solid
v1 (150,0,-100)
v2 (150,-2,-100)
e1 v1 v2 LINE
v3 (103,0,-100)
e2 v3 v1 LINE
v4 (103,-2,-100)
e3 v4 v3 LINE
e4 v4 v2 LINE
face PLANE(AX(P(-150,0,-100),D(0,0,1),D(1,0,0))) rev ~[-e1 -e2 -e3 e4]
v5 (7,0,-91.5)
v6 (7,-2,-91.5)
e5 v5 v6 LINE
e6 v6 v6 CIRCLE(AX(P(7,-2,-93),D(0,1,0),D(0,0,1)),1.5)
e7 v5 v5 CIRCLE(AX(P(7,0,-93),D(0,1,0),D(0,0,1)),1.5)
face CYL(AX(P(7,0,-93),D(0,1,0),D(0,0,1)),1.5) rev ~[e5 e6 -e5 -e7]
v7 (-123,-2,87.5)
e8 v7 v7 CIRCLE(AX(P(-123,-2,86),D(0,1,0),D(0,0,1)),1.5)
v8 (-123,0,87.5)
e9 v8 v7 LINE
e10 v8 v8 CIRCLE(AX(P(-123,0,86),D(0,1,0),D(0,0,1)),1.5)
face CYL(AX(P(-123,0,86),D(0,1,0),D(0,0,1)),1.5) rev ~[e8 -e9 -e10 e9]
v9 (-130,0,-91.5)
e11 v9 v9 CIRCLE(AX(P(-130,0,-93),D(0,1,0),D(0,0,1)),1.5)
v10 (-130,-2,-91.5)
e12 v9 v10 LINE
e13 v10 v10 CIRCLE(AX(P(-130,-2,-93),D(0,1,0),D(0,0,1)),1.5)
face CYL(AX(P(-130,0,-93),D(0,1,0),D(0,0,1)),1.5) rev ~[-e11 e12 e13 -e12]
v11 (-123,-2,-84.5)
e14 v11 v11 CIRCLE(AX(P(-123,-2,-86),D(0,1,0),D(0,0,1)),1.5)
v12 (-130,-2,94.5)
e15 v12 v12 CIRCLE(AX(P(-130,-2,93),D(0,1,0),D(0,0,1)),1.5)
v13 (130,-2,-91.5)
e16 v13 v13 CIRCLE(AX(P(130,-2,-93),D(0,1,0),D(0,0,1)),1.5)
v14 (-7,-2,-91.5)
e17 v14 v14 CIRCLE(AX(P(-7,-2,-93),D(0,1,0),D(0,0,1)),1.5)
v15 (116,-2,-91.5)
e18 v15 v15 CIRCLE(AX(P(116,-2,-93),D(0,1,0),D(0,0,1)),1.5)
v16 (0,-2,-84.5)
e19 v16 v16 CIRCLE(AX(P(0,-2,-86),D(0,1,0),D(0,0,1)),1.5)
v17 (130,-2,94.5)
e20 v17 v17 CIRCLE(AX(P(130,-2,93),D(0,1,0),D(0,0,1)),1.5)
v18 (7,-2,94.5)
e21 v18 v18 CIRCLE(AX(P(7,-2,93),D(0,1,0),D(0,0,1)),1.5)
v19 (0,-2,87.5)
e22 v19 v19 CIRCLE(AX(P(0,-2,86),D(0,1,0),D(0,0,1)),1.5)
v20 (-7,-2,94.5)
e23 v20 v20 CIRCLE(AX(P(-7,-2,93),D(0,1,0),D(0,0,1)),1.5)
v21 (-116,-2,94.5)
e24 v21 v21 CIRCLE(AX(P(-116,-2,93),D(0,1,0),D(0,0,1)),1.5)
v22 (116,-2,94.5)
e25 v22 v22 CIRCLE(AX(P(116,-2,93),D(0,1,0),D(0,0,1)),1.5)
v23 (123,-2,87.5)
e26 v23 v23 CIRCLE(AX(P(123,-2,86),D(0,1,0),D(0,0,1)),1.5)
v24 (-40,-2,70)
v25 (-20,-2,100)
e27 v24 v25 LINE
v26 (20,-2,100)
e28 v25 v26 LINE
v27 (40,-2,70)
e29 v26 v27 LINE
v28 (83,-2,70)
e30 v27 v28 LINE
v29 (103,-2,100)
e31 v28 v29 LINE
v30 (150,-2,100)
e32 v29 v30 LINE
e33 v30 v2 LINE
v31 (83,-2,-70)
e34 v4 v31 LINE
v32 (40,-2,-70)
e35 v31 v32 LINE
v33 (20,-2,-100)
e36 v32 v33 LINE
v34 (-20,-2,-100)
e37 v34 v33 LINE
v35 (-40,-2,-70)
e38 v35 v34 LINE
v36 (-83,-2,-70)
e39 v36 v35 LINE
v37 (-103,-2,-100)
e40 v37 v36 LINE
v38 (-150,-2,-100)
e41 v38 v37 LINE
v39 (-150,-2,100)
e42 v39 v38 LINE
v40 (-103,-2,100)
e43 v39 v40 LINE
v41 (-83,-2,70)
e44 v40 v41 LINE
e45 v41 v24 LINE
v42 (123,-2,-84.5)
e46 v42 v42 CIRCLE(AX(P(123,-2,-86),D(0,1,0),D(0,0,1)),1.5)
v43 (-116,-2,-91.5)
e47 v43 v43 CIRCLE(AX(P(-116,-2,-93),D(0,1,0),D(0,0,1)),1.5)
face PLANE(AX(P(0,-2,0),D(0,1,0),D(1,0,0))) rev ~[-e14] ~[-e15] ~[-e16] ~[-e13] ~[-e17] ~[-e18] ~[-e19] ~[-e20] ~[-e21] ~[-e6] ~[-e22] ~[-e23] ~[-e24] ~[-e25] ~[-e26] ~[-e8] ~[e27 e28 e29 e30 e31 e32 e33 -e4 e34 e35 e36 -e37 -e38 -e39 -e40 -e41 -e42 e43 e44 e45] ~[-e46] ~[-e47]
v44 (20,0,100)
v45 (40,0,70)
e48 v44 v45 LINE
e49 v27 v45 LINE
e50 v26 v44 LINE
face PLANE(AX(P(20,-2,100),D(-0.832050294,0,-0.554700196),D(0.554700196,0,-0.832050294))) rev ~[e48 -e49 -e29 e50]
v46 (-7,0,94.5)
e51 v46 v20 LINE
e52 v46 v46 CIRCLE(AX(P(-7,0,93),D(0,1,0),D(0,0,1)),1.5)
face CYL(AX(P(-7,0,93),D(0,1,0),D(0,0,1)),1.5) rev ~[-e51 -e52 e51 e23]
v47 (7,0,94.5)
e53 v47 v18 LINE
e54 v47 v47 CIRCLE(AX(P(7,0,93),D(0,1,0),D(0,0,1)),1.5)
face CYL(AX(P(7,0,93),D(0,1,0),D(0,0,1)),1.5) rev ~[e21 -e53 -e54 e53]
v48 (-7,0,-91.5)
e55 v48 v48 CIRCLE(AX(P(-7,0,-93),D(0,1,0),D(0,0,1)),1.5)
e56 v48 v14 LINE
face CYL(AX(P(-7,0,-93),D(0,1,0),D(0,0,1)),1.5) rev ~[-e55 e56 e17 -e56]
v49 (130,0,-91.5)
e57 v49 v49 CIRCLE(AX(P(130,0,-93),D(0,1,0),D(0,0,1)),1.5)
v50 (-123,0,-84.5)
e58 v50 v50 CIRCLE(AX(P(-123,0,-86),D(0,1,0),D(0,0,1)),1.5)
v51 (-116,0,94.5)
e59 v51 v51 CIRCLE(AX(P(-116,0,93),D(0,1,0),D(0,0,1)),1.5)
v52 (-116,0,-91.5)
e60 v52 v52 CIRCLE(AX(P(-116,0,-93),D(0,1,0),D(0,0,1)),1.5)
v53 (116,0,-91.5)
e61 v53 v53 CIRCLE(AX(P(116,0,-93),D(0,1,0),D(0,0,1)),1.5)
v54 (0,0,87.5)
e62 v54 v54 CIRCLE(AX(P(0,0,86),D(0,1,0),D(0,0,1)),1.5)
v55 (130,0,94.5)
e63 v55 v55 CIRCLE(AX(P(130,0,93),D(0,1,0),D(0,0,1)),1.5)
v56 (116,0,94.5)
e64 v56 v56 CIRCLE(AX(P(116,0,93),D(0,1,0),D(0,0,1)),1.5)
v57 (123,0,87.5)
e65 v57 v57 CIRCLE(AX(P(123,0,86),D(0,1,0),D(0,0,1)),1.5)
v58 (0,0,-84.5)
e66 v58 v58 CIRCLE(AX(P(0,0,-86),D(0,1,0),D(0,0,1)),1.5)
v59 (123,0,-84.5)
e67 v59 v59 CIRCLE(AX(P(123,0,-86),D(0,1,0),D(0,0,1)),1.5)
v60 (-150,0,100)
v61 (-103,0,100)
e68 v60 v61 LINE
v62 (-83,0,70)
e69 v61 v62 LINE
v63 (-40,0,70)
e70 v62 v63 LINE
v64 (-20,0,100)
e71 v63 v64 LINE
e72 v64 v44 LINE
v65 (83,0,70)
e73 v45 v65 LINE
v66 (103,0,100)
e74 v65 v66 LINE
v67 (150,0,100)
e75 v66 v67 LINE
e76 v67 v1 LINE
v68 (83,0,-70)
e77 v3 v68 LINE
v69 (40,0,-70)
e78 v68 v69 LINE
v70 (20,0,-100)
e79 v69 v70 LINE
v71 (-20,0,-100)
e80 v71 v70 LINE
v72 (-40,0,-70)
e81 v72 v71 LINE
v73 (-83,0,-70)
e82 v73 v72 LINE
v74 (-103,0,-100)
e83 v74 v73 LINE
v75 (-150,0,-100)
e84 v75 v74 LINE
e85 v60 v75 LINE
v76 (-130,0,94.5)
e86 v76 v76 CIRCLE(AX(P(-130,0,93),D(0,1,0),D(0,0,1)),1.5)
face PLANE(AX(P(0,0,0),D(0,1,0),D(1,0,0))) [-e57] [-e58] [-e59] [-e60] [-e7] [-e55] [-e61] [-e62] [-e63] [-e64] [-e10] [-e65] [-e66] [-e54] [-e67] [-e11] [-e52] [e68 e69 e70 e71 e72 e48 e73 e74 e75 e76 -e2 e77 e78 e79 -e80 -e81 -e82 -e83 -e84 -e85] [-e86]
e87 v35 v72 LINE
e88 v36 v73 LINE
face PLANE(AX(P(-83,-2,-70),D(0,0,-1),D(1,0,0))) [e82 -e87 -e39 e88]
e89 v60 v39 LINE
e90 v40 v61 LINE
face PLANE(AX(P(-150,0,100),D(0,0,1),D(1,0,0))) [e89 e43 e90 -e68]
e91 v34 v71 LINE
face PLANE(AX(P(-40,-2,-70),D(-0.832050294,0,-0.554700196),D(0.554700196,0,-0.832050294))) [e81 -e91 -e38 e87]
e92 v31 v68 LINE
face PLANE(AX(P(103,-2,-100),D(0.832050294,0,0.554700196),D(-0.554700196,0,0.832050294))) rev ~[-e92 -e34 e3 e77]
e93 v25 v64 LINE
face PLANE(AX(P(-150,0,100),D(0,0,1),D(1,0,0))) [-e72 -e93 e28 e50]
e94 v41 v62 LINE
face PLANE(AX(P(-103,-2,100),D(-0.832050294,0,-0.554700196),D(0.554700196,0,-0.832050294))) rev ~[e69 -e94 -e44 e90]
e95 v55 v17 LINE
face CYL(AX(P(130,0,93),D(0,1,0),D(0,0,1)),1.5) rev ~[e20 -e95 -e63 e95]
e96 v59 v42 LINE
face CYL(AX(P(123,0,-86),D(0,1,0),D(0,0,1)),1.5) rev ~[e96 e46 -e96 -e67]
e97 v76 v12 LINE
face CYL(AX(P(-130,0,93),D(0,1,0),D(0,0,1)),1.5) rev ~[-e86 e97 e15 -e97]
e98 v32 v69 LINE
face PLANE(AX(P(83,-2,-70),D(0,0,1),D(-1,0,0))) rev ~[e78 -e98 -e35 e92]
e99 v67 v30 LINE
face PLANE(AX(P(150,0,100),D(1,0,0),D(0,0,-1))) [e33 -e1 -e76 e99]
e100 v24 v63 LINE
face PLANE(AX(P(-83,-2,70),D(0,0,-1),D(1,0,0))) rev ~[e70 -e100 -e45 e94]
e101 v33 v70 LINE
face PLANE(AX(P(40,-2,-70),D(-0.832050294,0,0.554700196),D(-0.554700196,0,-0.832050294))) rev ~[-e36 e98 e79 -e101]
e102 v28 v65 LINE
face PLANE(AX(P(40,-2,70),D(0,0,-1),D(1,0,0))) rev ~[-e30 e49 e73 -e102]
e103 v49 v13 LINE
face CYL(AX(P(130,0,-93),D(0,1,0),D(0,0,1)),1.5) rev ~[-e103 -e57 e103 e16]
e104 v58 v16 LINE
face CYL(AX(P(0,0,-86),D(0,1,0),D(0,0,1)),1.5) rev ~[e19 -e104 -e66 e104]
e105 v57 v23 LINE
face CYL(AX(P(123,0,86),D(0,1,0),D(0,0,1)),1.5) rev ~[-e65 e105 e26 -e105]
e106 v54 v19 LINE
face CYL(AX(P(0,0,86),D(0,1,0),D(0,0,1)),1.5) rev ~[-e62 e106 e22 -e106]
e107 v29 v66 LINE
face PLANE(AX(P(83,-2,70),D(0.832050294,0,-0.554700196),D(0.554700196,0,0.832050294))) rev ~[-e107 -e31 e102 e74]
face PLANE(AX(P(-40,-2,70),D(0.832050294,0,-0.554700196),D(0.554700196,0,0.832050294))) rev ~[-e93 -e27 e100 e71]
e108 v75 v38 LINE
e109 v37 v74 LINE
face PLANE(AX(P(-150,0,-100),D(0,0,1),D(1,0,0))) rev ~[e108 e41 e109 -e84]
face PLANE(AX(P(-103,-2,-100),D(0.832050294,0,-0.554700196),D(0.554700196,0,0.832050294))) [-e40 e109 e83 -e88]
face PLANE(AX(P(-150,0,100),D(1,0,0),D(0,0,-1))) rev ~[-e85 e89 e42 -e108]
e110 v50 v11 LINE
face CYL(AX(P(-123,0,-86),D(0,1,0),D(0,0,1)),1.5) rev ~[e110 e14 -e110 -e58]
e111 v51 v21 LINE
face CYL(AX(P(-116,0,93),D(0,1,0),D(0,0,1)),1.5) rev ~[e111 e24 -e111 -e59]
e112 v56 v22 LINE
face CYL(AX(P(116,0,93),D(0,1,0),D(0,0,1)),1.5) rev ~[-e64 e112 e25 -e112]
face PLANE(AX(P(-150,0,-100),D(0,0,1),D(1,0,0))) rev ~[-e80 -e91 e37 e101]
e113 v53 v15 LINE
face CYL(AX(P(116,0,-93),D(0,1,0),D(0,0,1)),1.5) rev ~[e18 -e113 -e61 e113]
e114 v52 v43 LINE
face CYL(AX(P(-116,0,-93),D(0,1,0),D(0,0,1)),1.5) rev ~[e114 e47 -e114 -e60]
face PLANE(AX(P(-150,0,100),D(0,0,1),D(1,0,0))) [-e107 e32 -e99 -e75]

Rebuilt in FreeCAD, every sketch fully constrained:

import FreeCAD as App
import Part
import Sketcher
from FreeCAD import Vector


def add_polygon(sketch, points):
    """Adds a closed chain of lines whose ends are joined by coincident constraints."""
    first, n = sketch.GeometryCount, len(points)
    for a, b in zip(points, points[1:] + points[:1]):
        sketch.addGeometry(Part.LineSegment(App.Vector(*a, 0), App.Vector(*b, 0)), False)
    for i in range(n):
        sketch.addConstraint(Sketcher.Constraint("Coincident", first + i, 2, first + (i + 1) % n, 1))

doc = App.newDocument("Part")
body = doc.addObject("PartDesign::Body", "Body")

sketch1 = doc.addObject("Sketcher::SketchObject", "Sketch")
body.addObject(sketch1)
sketch1.AttachmentSupport = (doc.XZ_Plane, [""])
sketch1.MapMode = "FlatFace"
add_polygon(sketch1, [(-150, -100), (-150, 100), (150, 100), (150, -100)])
sketch1.addConstraint([
    Sketcher.Constraint("Vertical", 0),
    Sketcher.Constraint("Horizontal", 1),
    Sketcher.Constraint("Vertical", 2),
    Sketcher.Constraint("Horizontal", 3),
    Sketcher.Constraint("Symmetric", 0, 2, 2, 2, -1, 1),
    Sketcher.Constraint("DistanceX", 1, 1, 1, 2, 300.0),
    Sketcher.Constraint("DistanceY", 0, 1, 0, 2, 200.0),
])
pad1 = doc.addObject("PartDesign::Pad", "Pad")
body.addObject(pad1)
pad1.Profile = sketch1
pad1.Length = 2

sketch2 = doc.addObject("Sketcher::SketchObject", "Sketch001")
body.addObject(sketch2)
sketch2.AttachmentSupport = (doc.XZ_Plane, [""])
sketch2.MapMode = "FlatFace"
sketch2.addGeometry(Part.Circle(Vector(0, 86, 0), Vector(0, 0, 1), 1.5), False)
sketch2.addConstraint([
    Sketcher.Constraint("PointOnObject", 0, 3, -2),
    Sketcher.Constraint("Diameter", 0, 3.0),
    Sketcher.Constraint("DistanceY", -1, 1, 0, 3, 86.0),
])
pocket1 = doc.addObject("PartDesign::Pocket", "Pocket")
body.addObject(pocket1)
pocket1.Profile = sketch2
pocket1.Type = "UpToFirst"
pocket1.Reversed = True

sketch3 = doc.addObject("Sketcher::SketchObject", "Sketch002")
body.addObject(sketch3)
sketch3.AttachmentSupport = (doc.XZ_Plane, [""])
sketch3.MapMode = "FlatFace"
sketch3.addGeometry(Part.Circle(Vector(-7, 93, 0), Vector(0, 0, 1), 1.5), False)
sketch3.addConstraint([
    Sketcher.Constraint("Diameter", 0, 3.0),
    Sketcher.Constraint("DistanceX", 0, 3, -1, 1, 7.0),
    Sketcher.Constraint("DistanceY", -1, 1, 0, 3, 93.0),
])
pocket2 = doc.addObject("PartDesign::Pocket", "Pocket001")
body.addObject(pocket2)
pocket2.Profile = sketch3
pocket2.Type = "UpToFirst"
pocket2.Reversed = True

sketch4 = doc.addObject("Sketcher::SketchObject", "Sketch003")
body.addObject(sketch4)
sketch4.AttachmentSupport = (doc.XZ_Plane, [""])
sketch4.MapMode = "FlatFace"
sketch4.addGeometry(Part.Circle(Vector(7, 93, 0), Vector(0, 0, 1), 1.5), False)
sketch4.addConstraint([
    Sketcher.Constraint("Diameter", 0, 3.0),
    Sketcher.Constraint("DistanceX", -1, 1, 0, 3, 7.0),
    Sketcher.Constraint("DistanceY", -1, 1, 0, 3, 93.0),
])
pocket3 = doc.addObject("PartDesign::Pocket", "Pocket002")
body.addObject(pocket3)
pocket3.Profile = sketch4
pocket3.Type = "UpToFirst"
pocket3.Reversed = True

sketch5 = doc.addObject("Sketcher::SketchObject", "Sketch004")
body.addObject(sketch5)
sketch5.AttachmentSupport = (doc.XZ_Plane, [""])
sketch5.MapMode = "FlatFace"
sketch5.addGeometry(Part.Circle(Vector(-123, 86, 0), Vector(0, 0, 1), 1.5), False)
sketch5.addConstraint([
    Sketcher.Constraint("Diameter", 0, 3.0),
    Sketcher.Constraint("DistanceX", 0, 3, -1, 1, 123.0),
    Sketcher.Constraint("DistanceY", -1, 1, 0, 3, 86.0),
])
pocket4 = doc.addObject("PartDesign::Pocket", "Pocket003")
body.addObject(pocket4)
pocket4.Profile = sketch5
pocket4.Type = "UpToFirst"
pocket4.Reversed = True

sketch6 = doc.addObject("Sketcher::SketchObject", "Sketch005")
body.addObject(sketch6)
sketch6.AttachmentSupport = (doc.XZ_Plane, [""])
sketch6.MapMode = "FlatFace"
sketch6.addGeometry(Part.Circle(Vector(-130, 93, 0), Vector(0, 0, 1), 1.5), False)
sketch6.addConstraint([
    Sketcher.Constraint("Diameter", 0, 3.0),
    Sketcher.Constraint("DistanceX", 0, 3, -1, 1, 130.0),
    Sketcher.Constraint("DistanceY", -1, 1, 0, 3, 93.0),
])
pocket5 = doc.addObject("PartDesign::Pocket", "Pocket004")
body.addObject(pocket5)
pocket5.Profile = sketch6
pocket5.Type = "UpToFirst"
pocket5.Reversed = True

sketch7 = doc.addObject("Sketcher::SketchObject", "Sketch006")
body.addObject(sketch7)
sketch7.AttachmentSupport = (doc.XZ_Plane, [""])
sketch7.MapMode = "FlatFace"
sketch7.addGeometry(Part.Circle(Vector(-116, 93, 0), Vector(0, 0, 1), 1.5), False)
sketch7.addConstraint([
    Sketcher.Constraint("Diameter", 0, 3.0),
    Sketcher.Constraint("DistanceX", 0, 3, -1, 1, 116.0),
    Sketcher.Constraint("DistanceY", -1, 1, 0, 3, 93.0),
])
pocket6 = doc.addObject("PartDesign::Pocket", "Pocket005")
body.addObject(pocket6)
pocket6.Profile = sketch7
pocket6.Type = "UpToFirst"
pocket6.Reversed = True

sketch8 = doc.addObject("Sketcher::SketchObject", "Sketch007")
body.addObject(sketch8)
sketch8.AttachmentSupport = (doc.XZ_Plane, [""])
sketch8.MapMode = "FlatFace"
sketch8.addGeometry(Part.Circle(Vector(130, 93, 0), Vector(0, 0, 1), 1.5), False)
sketch8.addConstraint([
    Sketcher.Constraint("Diameter", 0, 3.0),
    Sketcher.Constraint("DistanceX", -1, 1, 0, 3, 130.0),
    Sketcher.Constraint("DistanceY", -1, 1, 0, 3, 93.0),
])
pocket7 = doc.addObject("PartDesign::Pocket", "Pocket006")
body.addObject(pocket7)
pocket7.Profile = sketch8
pocket7.Type = "UpToFirst"
pocket7.Reversed = True

sketch9 = doc.addObject("Sketcher::SketchObject", "Sketch008")
body.addObject(sketch9)
sketch9.AttachmentSupport = (doc.XZ_Plane, [""])
sketch9.MapMode = "FlatFace"
sketch9.addGeometry(Part.Circle(Vector(123, 86, 0), Vector(0, 0, 1), 1.5), False)
sketch9.addConstraint([
    Sketcher.Constraint("Diameter", 0, 3.0),
    Sketcher.Constraint("DistanceX", -1, 1, 0, 3, 123.0),
    Sketcher.Constraint("DistanceY", -1, 1, 0, 3, 86.0),
])
pocket8 = doc.addObject("PartDesign::Pocket", "Pocket007")
body.addObject(pocket8)
pocket8.Profile = sketch9
pocket8.Type = "UpToFirst"
pocket8.Reversed = True

sketch10 = doc.addObject("Sketcher::SketchObject", "Sketch009")
body.addObject(sketch10)
sketch10.AttachmentSupport = (doc.XZ_Plane, [""])
sketch10.MapMode = "FlatFace"
sketch10.addGeometry(Part.Circle(Vector(116, 93, 0), Vector(0, 0, 1), 1.5), False)
sketch10.addConstraint([
    Sketcher.Constraint("Diameter", 0, 3.0),
    Sketcher.Constraint("DistanceX", -1, 1, 0, 3, 116.0),
    Sketcher.Constraint("DistanceY", -1, 1, 0, 3, 93.0),
])
pocket9 = doc.addObject("PartDesign::Pocket", "Pocket008")
body.addObject(pocket9)
pocket9.Profile = sketch10
pocket9.Type = "UpToFirst"
pocket9.Reversed = True

sketch11 = doc.addObject("Sketcher::SketchObject", "Sketch010")
body.addObject(sketch11)
sketch11.AttachmentSupport = (doc.XZ_Plane, [""])
sketch11.MapMode = "FlatFace"
sketch11.addGeometry(Part.Circle(Vector(0, -86, 0), Vector(0, 0, 1), 1.5), False)
sketch11.addConstraint([
    Sketcher.Constraint("PointOnObject", 0, 3, -2),
    Sketcher.Constraint("Diameter", 0, 3.0),
    Sketcher.Constraint("DistanceY", 0, 3, -1, 1, 86.0),
])
pocket10 = doc.addObject("PartDesign::Pocket", "Pocket009")
body.addObject(pocket10)
pocket10.Profile = sketch11
pocket10.Type = "UpToFirst"
pocket10.Reversed = True

sketch12 = doc.addObject("Sketcher::SketchObject", "Sketch011")
body.addObject(sketch12)
sketch12.AttachmentSupport = (doc.XZ_Plane, [""])
sketch12.MapMode = "FlatFace"
sketch12.addGeometry(Part.Circle(Vector(7, -93, 0), Vector(0, 0, 1), 1.5), False)
sketch12.addConstraint([
    Sketcher.Constraint("Diameter", 0, 3.0),
    Sketcher.Constraint("DistanceX", -1, 1, 0, 3, 7.0),
    Sketcher.Constraint("DistanceY", 0, 3, -1, 1, 93.0),
])
pocket11 = doc.addObject("PartDesign::Pocket", "Pocket010")
body.addObject(pocket11)
pocket11.Profile = sketch12
pocket11.Type = "UpToFirst"
pocket11.Reversed = True

sketch13 = doc.addObject("Sketcher::SketchObject", "Sketch012")
body.addObject(sketch13)
sketch13.AttachmentSupport = (doc.XZ_Plane, [""])
sketch13.MapMode = "FlatFace"
sketch13.addGeometry(Part.Circle(Vector(-7, -93, 0), Vector(0, 0, 1), 1.5), False)
sketch13.addConstraint([
    Sketcher.Constraint("Diameter", 0, 3.0),
    Sketcher.Constraint("DistanceX", 0, 3, -1, 1, 7.0),
    Sketcher.Constraint("DistanceY", 0, 3, -1, 1, 93.0),
])
pocket12 = doc.addObject("PartDesign::Pocket", "Pocket011")
body.addObject(pocket12)
pocket12.Profile = sketch13
pocket12.Type = "UpToFirst"
pocket12.Reversed = True

sketch14 = doc.addObject("Sketcher::SketchObject", "Sketch013")
body.addObject(sketch14)
sketch14.AttachmentSupport = (doc.XZ_Plane, [""])
sketch14.MapMode = "FlatFace"
sketch14.addGeometry(Part.Circle(Vector(130, -93, 0), Vector(0, 0, 1), 1.5), False)
sketch14.addConstraint([
    Sketcher.Constraint("Diameter", 0, 3.0),
    Sketcher.Constraint("DistanceX", -1, 1, 0, 3, 130.0),
    Sketcher.Constraint("DistanceY", 0, 3, -1, 1, 93.0),
])
pocket13 = doc.addObject("PartDesign::Pocket", "Pocket012")
body.addObject(pocket13)
pocket13.Profile = sketch14
pocket13.Type = "UpToFirst"
pocket13.Reversed = True

sketch15 = doc.addObject("Sketcher::SketchObject", "Sketch014")
body.addObject(sketch15)
sketch15.AttachmentSupport = (doc.XZ_Plane, [""])
sketch15.MapMode = "FlatFace"
sketch15.addGeometry(Part.Circle(Vector(123, -86, 0), Vector(0, 0, 1), 1.5), False)
sketch15.addConstraint([
    Sketcher.Constraint("Diameter", 0, 3.0),
    Sketcher.Constraint("DistanceX", -1, 1, 0, 3, 123.0),
    Sketcher.Constraint("DistanceY", 0, 3, -1, 1, 86.0),
])
pocket14 = doc.addObject("PartDesign::Pocket", "Pocket013")
body.addObject(pocket14)
pocket14.Profile = sketch15
pocket14.Type = "UpToFirst"
pocket14.Reversed = True

sketch16 = doc.addObject("Sketcher::SketchObject", "Sketch015")
body.addObject(sketch16)
sketch16.AttachmentSupport = (doc.XZ_Plane, [""])
sketch16.MapMode = "FlatFace"
sketch16.addGeometry(Part.Circle(Vector(116, -93, 0), Vector(0, 0, 1), 1.5), False)
sketch16.addConstraint([
    Sketcher.Constraint("Diameter", 0, 3.0),
    Sketcher.Constraint("DistanceX", -1, 1, 0, 3, 116.0),
    Sketcher.Constraint("DistanceY", 0, 3, -1, 1, 93.0),
])
pocket15 = doc.addObject("PartDesign::Pocket", "Pocket014")
body.addObject(pocket15)
pocket15.Profile = sketch16
pocket15.Type = "UpToFirst"
pocket15.Reversed = True

sketch17 = doc.addObject("Sketcher::SketchObject", "Sketch016")
body.addObject(sketch17)
sketch17.AttachmentSupport = (doc.XZ_Plane, [""])
sketch17.MapMode = "FlatFace"
sketch17.addGeometry(Part.Circle(Vector(-116, -93, 0), Vector(0, 0, 1), 1.5), False)
sketch17.addConstraint([
    Sketcher.Constraint("Diameter", 0, 3.0),
    Sketcher.Constraint("DistanceX", 0, 3, -1, 1, 116.0),
    Sketcher.Constraint("DistanceY", 0, 3, -1, 1, 93.0),
])
pocket16 = doc.addObject("PartDesign::Pocket", "Pocket015")
body.addObject(pocket16)
pocket16.Profile = sketch17
pocket16.Type = "UpToFirst"
pocket16.Reversed = True

sketch18 = doc.addObject("Sketcher::SketchObject", "Sketch017")
body.addObject(sketch18)
sketch18.AttachmentSupport = (doc.XZ_Plane, [""])
sketch18.MapMode = "FlatFace"
sketch18.addGeometry(Part.Circle(Vector(-123, -86, 0), Vector(0, 0, 1), 1.5), False)
sketch18.addConstraint([
    Sketcher.Constraint("Diameter", 0, 3.0),
    Sketcher.Constraint("DistanceX", 0, 3, -1, 1, 123.0),
    Sketcher.Constraint("DistanceY", 0, 3, -1, 1, 86.0),
])
pocket17 = doc.addObject("PartDesign::Pocket", "Pocket016")
body.addObject(pocket17)
pocket17.Profile = sketch18
pocket17.Type = "UpToFirst"
pocket17.Reversed = True

sketch19 = doc.addObject("Sketcher::SketchObject", "Sketch018")
body.addObject(sketch19)
sketch19.AttachmentSupport = (doc.XZ_Plane, [""])
sketch19.MapMode = "FlatFace"
sketch19.addGeometry(Part.Circle(Vector(-130, -93, 0), Vector(0, 0, 1), 1.5), False)
sketch19.addConstraint([
    Sketcher.Constraint("Diameter", 0, 3.0),
    Sketcher.Constraint("DistanceX", 0, 3, -1, 1, 130.0),
    Sketcher.Constraint("DistanceY", 0, 3, -1, 1, 93.0),
])
pocket18 = doc.addObject("PartDesign::Pocket", "Pocket017")
body.addObject(pocket18)
pocket18.Profile = sketch19
pocket18.Type = "UpToFirst"
pocket18.Reversed = True

sketch20 = doc.addObject("Sketcher::SketchObject", "Sketch019")
body.addObject(sketch20)
sketch20.AttachmentSupport = (doc.XZ_Plane, [""])
sketch20.MapMode = "FlatFace"
sketch20.AttachmentOffset = App.Placement(Vector(0, 0, 2), App.Rotation())
add_polygon(sketch20, [(-83, -70), (-103, -100), (-20, -100), (-40, -70)])
add_polygon(sketch20, [(103, -100), (83, -70), (40, -70), (20, -100)])
add_polygon(sketch20, [(103, 100), (20, 100), (40, 70), (83, 70)])
add_polygon(sketch20, [(-103, 100), (-83, 70), (-40, 70), (-20, 100)])
sketch20.addConstraint([
    Sketcher.Constraint("Horizontal", 1),
    Sketcher.Constraint("Horizontal", 3),
    Sketcher.Constraint("Horizontal", 5),
    Sketcher.Constraint("Horizontal", 7),
    Sketcher.Constraint("Horizontal", 8),
    Sketcher.Constraint("Horizontal", 10),
    Sketcher.Constraint("Horizontal", 13),
    Sketcher.Constraint("Horizontal", 15),
    Sketcher.Constraint("Symmetric", 1, 2, 8, 2, -1, 1),
    Sketcher.Constraint("Symmetric", 2, 2, 9, 2, -1, 1),
    Sketcher.Constraint("Symmetric", 4, 2, 12, 2, -1, 1),
    Sketcher.Constraint("Symmetric", 6, 2, 14, 2, -1, 1),
    Sketcher.Constraint("Symmetric", 3, 2, 4, 2, -2),
    Sketcher.Constraint("Symmetric", 1, 2, 6, 2, -2),
    Sketcher.Constraint("Parallel", 2, 4),
    Sketcher.Constraint("Parallel", 0, 6),
    Sketcher.Constraint("Parallel", 6, 11),
    Sketcher.Constraint("Parallel", 9, 12),
    Sketcher.Constraint("Parallel", 11, 14),
    Sketcher.Constraint("Vertical", 5, 2, 9, 2),
    Sketcher.Constraint("Vertical", 4, 2, 10, 2),
    Sketcher.Constraint("DistanceX", 1, 1, 1, 2, 83.0),
    Sketcher.Constraint("DistanceX", 3, 2, 3, 1, 43.0),
    Sketcher.Constraint("DistanceX", 0, 2, -1, 1, 103.0),
    Sketcher.Constraint("DistanceY", 0, 2, -1, 1, 100.0),
    Sketcher.Constraint("DistanceY", 2, 2, -1, 1, 70.0),
])
pocket19 = doc.addObject("PartDesign::Pocket", "Pocket018")
body.addObject(pocket19)
pocket19.Profile = sketch20
pocket19.Length = 2

doc.recompute()
